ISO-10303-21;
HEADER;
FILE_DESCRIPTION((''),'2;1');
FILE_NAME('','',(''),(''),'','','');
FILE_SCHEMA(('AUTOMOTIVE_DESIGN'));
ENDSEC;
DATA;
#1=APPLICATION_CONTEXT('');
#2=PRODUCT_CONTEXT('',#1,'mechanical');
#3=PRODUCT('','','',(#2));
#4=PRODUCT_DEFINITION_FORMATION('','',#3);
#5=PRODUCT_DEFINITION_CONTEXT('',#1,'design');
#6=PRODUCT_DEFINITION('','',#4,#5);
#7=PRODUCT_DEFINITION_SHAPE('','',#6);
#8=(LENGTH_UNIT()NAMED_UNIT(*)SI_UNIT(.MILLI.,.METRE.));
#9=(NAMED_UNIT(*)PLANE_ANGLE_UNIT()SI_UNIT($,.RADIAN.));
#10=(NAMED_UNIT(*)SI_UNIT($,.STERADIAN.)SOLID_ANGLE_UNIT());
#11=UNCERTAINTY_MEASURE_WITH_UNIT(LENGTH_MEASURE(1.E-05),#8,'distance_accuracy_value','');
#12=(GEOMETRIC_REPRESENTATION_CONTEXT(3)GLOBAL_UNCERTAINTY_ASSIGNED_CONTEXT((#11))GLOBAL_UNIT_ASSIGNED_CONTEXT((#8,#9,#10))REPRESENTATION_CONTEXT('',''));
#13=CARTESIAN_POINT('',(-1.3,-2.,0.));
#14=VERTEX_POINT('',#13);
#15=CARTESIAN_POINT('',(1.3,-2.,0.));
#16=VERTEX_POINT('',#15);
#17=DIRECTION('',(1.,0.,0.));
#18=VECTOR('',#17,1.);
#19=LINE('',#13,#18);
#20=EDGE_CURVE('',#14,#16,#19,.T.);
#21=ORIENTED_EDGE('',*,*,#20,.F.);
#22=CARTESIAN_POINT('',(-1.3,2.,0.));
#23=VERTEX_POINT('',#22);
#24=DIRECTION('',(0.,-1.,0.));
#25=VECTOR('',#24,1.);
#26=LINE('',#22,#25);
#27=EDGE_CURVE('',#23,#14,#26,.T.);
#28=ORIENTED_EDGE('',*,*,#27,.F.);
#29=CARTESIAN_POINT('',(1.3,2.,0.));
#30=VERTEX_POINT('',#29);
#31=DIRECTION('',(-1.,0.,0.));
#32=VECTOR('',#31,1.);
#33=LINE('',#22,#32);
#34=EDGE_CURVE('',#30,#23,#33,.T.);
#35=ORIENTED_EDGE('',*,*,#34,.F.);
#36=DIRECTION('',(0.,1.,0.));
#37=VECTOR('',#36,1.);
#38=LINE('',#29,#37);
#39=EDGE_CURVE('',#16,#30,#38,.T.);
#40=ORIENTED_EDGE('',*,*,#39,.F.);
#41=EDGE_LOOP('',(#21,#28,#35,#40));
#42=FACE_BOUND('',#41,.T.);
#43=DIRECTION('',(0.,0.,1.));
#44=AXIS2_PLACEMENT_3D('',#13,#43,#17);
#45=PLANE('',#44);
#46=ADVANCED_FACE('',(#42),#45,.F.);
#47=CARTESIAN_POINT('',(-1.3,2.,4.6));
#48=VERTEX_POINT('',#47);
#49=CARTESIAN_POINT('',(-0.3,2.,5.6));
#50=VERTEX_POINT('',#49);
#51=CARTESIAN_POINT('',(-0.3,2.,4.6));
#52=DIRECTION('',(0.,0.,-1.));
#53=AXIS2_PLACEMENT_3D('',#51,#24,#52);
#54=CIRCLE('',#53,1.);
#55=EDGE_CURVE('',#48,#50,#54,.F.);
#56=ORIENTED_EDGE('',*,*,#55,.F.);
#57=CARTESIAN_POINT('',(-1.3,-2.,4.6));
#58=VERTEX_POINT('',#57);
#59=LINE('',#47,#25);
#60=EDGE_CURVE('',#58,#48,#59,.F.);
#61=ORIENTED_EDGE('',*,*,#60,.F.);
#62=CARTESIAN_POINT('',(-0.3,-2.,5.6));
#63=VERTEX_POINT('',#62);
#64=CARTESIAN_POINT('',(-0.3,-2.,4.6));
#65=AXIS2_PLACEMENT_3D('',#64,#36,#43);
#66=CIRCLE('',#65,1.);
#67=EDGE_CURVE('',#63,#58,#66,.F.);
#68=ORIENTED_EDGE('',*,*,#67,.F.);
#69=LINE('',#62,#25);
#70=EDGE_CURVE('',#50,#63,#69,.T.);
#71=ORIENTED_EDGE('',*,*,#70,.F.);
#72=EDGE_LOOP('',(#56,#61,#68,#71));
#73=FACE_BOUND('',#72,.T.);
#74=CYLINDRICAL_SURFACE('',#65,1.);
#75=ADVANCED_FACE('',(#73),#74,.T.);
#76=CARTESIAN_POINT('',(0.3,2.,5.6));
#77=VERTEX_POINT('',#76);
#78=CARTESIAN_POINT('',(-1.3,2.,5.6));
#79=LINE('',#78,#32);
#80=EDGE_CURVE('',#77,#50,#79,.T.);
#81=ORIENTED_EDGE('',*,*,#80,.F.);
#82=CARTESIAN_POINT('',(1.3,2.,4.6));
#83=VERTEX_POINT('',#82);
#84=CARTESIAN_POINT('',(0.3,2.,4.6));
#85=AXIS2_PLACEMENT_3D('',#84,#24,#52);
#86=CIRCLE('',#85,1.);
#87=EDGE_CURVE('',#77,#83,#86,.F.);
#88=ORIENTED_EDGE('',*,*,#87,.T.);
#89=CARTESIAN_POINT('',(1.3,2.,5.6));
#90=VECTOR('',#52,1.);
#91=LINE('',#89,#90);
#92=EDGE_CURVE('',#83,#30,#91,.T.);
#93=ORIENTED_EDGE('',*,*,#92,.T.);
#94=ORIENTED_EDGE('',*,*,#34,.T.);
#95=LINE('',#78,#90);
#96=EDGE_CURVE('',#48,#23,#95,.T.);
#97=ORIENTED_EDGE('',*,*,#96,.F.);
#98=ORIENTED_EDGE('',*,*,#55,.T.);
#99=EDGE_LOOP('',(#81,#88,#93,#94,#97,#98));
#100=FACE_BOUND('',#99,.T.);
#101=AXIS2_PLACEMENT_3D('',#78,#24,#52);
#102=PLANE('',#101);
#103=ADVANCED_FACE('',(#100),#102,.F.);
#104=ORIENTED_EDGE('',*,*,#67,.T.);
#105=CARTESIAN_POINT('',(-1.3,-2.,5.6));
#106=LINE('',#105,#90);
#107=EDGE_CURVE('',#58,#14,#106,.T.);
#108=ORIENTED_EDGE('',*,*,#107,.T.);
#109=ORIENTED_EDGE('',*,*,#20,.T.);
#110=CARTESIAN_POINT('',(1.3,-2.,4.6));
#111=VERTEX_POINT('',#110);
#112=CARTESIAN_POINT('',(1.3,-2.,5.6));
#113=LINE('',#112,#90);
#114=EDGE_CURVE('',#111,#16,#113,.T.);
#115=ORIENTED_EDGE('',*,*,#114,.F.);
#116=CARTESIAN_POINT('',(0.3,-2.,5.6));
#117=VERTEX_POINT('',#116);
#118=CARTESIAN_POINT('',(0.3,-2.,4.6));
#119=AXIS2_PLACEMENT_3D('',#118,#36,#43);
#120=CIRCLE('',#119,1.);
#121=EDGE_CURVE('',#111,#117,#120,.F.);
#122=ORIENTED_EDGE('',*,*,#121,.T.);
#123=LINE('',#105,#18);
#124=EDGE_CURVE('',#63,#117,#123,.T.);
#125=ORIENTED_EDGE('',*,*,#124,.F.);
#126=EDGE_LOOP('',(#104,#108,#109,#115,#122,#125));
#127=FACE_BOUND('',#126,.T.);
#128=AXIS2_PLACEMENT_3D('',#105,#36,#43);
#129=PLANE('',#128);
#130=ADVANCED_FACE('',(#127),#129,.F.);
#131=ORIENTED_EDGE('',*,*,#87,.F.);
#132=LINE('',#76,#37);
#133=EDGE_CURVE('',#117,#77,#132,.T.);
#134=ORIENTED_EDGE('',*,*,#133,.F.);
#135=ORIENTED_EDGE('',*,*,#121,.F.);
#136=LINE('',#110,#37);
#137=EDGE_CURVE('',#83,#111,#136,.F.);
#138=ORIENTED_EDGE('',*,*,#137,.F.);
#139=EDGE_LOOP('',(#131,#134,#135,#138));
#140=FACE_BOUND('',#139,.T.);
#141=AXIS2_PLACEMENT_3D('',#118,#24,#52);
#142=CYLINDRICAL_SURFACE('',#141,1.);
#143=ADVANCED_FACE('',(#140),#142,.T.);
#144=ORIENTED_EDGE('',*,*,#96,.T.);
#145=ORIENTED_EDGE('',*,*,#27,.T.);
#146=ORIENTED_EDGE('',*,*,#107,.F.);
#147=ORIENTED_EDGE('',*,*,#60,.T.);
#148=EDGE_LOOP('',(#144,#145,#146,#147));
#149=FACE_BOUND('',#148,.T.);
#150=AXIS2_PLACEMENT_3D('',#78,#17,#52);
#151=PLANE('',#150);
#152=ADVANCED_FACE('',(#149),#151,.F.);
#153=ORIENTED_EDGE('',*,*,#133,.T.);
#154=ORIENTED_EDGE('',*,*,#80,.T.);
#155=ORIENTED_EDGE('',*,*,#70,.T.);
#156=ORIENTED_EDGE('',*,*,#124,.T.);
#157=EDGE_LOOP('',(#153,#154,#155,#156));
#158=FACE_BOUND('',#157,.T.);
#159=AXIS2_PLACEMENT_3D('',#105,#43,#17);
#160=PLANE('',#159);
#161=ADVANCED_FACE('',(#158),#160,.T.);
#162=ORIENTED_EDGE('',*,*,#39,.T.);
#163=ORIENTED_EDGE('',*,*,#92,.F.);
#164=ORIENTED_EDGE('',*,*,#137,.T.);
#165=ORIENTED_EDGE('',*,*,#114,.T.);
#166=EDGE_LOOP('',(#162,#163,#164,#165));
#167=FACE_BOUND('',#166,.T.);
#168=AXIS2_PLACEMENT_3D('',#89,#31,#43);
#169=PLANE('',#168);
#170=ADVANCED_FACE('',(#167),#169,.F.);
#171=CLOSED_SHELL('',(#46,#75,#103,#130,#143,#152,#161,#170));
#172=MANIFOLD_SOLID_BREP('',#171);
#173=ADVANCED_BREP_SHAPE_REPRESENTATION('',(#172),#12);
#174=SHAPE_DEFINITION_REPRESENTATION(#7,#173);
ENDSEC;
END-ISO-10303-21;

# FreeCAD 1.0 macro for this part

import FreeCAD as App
import Part
import Sketcher

V = App.Vector
Q = App.Units.Quantity


def edges_at(feature, points):
    """Names of the edges that pass closest to the given points."""
    edges = feature.Shape.Edges
    near = lambda p: min(range(len(edges)), key=lambda i: edges[i].distToShape(Part.Vertex(*p))[0])
    return sorted({f"Edge{near(p) + 1}" for p in points})

doc = App.newDocument("Part")
body = doc.addObject("PartDesign::Body", "Body")

# Sketch on XY plane
sketch1 = body.newObject("Sketcher::SketchObject", "Sketch")
sketch1.AttachmentSupport = (doc.getObject("XY_Plane"), [""])
sketch1.MapMode = "FlatFace"
sketch1.addGeometry([
    Part.LineSegment(V(-1.3, 2, 0), V(-1.3, -2, 0)),
    Part.LineSegment(V(-1.3, -2, 0), V(1.3, -2, 0)),
    Part.LineSegment(V(1.3, -2, 0), V(1.3, 2, 0)),
    Part.LineSegment(V(1.3, 2, 0), V(-1.3, 2, 0)),
], False)
sketch1.addConstraint([
    Sketcher.Constraint("Coincident", 0, 2, 1, 1),
    Sketcher.Constraint("Coincident", 1, 2, 2, 1),
    Sketcher.Constraint("Coincident", 2, 2, 3, 1),
    Sketcher.Constraint("Coincident", 3, 2, 0, 1),
    Sketcher.Constraint("Vertical", 0),
    Sketcher.Constraint("Horizontal", 1),
    Sketcher.Constraint("Vertical", 2),
    Sketcher.Constraint("Horizontal", 3),
    Sketcher.Constraint("Symmetric", 0, 2, 2, 2, -1, 1),
    Sketcher.Constraint("DistanceY", 0, 2, 0, 1, Q("4 mm")),
    Sketcher.Constraint("DistanceX", 1, 1, 1, 2, Q("2.6 mm")),
])
pad1 = body.newObject("PartDesign::Pad", "Pad")
pad1.Profile = sketch1
pad1.Length = 5.6
doc.recompute()

fillet = body.newObject("PartDesign::Fillet", "Fillet")
fillet.Base = (pad1, edges_at(pad1, [(1.3, 0, 5.6), (-1.3, 0, 5.6)]))
fillet.Radius = 1

doc.recompute()
